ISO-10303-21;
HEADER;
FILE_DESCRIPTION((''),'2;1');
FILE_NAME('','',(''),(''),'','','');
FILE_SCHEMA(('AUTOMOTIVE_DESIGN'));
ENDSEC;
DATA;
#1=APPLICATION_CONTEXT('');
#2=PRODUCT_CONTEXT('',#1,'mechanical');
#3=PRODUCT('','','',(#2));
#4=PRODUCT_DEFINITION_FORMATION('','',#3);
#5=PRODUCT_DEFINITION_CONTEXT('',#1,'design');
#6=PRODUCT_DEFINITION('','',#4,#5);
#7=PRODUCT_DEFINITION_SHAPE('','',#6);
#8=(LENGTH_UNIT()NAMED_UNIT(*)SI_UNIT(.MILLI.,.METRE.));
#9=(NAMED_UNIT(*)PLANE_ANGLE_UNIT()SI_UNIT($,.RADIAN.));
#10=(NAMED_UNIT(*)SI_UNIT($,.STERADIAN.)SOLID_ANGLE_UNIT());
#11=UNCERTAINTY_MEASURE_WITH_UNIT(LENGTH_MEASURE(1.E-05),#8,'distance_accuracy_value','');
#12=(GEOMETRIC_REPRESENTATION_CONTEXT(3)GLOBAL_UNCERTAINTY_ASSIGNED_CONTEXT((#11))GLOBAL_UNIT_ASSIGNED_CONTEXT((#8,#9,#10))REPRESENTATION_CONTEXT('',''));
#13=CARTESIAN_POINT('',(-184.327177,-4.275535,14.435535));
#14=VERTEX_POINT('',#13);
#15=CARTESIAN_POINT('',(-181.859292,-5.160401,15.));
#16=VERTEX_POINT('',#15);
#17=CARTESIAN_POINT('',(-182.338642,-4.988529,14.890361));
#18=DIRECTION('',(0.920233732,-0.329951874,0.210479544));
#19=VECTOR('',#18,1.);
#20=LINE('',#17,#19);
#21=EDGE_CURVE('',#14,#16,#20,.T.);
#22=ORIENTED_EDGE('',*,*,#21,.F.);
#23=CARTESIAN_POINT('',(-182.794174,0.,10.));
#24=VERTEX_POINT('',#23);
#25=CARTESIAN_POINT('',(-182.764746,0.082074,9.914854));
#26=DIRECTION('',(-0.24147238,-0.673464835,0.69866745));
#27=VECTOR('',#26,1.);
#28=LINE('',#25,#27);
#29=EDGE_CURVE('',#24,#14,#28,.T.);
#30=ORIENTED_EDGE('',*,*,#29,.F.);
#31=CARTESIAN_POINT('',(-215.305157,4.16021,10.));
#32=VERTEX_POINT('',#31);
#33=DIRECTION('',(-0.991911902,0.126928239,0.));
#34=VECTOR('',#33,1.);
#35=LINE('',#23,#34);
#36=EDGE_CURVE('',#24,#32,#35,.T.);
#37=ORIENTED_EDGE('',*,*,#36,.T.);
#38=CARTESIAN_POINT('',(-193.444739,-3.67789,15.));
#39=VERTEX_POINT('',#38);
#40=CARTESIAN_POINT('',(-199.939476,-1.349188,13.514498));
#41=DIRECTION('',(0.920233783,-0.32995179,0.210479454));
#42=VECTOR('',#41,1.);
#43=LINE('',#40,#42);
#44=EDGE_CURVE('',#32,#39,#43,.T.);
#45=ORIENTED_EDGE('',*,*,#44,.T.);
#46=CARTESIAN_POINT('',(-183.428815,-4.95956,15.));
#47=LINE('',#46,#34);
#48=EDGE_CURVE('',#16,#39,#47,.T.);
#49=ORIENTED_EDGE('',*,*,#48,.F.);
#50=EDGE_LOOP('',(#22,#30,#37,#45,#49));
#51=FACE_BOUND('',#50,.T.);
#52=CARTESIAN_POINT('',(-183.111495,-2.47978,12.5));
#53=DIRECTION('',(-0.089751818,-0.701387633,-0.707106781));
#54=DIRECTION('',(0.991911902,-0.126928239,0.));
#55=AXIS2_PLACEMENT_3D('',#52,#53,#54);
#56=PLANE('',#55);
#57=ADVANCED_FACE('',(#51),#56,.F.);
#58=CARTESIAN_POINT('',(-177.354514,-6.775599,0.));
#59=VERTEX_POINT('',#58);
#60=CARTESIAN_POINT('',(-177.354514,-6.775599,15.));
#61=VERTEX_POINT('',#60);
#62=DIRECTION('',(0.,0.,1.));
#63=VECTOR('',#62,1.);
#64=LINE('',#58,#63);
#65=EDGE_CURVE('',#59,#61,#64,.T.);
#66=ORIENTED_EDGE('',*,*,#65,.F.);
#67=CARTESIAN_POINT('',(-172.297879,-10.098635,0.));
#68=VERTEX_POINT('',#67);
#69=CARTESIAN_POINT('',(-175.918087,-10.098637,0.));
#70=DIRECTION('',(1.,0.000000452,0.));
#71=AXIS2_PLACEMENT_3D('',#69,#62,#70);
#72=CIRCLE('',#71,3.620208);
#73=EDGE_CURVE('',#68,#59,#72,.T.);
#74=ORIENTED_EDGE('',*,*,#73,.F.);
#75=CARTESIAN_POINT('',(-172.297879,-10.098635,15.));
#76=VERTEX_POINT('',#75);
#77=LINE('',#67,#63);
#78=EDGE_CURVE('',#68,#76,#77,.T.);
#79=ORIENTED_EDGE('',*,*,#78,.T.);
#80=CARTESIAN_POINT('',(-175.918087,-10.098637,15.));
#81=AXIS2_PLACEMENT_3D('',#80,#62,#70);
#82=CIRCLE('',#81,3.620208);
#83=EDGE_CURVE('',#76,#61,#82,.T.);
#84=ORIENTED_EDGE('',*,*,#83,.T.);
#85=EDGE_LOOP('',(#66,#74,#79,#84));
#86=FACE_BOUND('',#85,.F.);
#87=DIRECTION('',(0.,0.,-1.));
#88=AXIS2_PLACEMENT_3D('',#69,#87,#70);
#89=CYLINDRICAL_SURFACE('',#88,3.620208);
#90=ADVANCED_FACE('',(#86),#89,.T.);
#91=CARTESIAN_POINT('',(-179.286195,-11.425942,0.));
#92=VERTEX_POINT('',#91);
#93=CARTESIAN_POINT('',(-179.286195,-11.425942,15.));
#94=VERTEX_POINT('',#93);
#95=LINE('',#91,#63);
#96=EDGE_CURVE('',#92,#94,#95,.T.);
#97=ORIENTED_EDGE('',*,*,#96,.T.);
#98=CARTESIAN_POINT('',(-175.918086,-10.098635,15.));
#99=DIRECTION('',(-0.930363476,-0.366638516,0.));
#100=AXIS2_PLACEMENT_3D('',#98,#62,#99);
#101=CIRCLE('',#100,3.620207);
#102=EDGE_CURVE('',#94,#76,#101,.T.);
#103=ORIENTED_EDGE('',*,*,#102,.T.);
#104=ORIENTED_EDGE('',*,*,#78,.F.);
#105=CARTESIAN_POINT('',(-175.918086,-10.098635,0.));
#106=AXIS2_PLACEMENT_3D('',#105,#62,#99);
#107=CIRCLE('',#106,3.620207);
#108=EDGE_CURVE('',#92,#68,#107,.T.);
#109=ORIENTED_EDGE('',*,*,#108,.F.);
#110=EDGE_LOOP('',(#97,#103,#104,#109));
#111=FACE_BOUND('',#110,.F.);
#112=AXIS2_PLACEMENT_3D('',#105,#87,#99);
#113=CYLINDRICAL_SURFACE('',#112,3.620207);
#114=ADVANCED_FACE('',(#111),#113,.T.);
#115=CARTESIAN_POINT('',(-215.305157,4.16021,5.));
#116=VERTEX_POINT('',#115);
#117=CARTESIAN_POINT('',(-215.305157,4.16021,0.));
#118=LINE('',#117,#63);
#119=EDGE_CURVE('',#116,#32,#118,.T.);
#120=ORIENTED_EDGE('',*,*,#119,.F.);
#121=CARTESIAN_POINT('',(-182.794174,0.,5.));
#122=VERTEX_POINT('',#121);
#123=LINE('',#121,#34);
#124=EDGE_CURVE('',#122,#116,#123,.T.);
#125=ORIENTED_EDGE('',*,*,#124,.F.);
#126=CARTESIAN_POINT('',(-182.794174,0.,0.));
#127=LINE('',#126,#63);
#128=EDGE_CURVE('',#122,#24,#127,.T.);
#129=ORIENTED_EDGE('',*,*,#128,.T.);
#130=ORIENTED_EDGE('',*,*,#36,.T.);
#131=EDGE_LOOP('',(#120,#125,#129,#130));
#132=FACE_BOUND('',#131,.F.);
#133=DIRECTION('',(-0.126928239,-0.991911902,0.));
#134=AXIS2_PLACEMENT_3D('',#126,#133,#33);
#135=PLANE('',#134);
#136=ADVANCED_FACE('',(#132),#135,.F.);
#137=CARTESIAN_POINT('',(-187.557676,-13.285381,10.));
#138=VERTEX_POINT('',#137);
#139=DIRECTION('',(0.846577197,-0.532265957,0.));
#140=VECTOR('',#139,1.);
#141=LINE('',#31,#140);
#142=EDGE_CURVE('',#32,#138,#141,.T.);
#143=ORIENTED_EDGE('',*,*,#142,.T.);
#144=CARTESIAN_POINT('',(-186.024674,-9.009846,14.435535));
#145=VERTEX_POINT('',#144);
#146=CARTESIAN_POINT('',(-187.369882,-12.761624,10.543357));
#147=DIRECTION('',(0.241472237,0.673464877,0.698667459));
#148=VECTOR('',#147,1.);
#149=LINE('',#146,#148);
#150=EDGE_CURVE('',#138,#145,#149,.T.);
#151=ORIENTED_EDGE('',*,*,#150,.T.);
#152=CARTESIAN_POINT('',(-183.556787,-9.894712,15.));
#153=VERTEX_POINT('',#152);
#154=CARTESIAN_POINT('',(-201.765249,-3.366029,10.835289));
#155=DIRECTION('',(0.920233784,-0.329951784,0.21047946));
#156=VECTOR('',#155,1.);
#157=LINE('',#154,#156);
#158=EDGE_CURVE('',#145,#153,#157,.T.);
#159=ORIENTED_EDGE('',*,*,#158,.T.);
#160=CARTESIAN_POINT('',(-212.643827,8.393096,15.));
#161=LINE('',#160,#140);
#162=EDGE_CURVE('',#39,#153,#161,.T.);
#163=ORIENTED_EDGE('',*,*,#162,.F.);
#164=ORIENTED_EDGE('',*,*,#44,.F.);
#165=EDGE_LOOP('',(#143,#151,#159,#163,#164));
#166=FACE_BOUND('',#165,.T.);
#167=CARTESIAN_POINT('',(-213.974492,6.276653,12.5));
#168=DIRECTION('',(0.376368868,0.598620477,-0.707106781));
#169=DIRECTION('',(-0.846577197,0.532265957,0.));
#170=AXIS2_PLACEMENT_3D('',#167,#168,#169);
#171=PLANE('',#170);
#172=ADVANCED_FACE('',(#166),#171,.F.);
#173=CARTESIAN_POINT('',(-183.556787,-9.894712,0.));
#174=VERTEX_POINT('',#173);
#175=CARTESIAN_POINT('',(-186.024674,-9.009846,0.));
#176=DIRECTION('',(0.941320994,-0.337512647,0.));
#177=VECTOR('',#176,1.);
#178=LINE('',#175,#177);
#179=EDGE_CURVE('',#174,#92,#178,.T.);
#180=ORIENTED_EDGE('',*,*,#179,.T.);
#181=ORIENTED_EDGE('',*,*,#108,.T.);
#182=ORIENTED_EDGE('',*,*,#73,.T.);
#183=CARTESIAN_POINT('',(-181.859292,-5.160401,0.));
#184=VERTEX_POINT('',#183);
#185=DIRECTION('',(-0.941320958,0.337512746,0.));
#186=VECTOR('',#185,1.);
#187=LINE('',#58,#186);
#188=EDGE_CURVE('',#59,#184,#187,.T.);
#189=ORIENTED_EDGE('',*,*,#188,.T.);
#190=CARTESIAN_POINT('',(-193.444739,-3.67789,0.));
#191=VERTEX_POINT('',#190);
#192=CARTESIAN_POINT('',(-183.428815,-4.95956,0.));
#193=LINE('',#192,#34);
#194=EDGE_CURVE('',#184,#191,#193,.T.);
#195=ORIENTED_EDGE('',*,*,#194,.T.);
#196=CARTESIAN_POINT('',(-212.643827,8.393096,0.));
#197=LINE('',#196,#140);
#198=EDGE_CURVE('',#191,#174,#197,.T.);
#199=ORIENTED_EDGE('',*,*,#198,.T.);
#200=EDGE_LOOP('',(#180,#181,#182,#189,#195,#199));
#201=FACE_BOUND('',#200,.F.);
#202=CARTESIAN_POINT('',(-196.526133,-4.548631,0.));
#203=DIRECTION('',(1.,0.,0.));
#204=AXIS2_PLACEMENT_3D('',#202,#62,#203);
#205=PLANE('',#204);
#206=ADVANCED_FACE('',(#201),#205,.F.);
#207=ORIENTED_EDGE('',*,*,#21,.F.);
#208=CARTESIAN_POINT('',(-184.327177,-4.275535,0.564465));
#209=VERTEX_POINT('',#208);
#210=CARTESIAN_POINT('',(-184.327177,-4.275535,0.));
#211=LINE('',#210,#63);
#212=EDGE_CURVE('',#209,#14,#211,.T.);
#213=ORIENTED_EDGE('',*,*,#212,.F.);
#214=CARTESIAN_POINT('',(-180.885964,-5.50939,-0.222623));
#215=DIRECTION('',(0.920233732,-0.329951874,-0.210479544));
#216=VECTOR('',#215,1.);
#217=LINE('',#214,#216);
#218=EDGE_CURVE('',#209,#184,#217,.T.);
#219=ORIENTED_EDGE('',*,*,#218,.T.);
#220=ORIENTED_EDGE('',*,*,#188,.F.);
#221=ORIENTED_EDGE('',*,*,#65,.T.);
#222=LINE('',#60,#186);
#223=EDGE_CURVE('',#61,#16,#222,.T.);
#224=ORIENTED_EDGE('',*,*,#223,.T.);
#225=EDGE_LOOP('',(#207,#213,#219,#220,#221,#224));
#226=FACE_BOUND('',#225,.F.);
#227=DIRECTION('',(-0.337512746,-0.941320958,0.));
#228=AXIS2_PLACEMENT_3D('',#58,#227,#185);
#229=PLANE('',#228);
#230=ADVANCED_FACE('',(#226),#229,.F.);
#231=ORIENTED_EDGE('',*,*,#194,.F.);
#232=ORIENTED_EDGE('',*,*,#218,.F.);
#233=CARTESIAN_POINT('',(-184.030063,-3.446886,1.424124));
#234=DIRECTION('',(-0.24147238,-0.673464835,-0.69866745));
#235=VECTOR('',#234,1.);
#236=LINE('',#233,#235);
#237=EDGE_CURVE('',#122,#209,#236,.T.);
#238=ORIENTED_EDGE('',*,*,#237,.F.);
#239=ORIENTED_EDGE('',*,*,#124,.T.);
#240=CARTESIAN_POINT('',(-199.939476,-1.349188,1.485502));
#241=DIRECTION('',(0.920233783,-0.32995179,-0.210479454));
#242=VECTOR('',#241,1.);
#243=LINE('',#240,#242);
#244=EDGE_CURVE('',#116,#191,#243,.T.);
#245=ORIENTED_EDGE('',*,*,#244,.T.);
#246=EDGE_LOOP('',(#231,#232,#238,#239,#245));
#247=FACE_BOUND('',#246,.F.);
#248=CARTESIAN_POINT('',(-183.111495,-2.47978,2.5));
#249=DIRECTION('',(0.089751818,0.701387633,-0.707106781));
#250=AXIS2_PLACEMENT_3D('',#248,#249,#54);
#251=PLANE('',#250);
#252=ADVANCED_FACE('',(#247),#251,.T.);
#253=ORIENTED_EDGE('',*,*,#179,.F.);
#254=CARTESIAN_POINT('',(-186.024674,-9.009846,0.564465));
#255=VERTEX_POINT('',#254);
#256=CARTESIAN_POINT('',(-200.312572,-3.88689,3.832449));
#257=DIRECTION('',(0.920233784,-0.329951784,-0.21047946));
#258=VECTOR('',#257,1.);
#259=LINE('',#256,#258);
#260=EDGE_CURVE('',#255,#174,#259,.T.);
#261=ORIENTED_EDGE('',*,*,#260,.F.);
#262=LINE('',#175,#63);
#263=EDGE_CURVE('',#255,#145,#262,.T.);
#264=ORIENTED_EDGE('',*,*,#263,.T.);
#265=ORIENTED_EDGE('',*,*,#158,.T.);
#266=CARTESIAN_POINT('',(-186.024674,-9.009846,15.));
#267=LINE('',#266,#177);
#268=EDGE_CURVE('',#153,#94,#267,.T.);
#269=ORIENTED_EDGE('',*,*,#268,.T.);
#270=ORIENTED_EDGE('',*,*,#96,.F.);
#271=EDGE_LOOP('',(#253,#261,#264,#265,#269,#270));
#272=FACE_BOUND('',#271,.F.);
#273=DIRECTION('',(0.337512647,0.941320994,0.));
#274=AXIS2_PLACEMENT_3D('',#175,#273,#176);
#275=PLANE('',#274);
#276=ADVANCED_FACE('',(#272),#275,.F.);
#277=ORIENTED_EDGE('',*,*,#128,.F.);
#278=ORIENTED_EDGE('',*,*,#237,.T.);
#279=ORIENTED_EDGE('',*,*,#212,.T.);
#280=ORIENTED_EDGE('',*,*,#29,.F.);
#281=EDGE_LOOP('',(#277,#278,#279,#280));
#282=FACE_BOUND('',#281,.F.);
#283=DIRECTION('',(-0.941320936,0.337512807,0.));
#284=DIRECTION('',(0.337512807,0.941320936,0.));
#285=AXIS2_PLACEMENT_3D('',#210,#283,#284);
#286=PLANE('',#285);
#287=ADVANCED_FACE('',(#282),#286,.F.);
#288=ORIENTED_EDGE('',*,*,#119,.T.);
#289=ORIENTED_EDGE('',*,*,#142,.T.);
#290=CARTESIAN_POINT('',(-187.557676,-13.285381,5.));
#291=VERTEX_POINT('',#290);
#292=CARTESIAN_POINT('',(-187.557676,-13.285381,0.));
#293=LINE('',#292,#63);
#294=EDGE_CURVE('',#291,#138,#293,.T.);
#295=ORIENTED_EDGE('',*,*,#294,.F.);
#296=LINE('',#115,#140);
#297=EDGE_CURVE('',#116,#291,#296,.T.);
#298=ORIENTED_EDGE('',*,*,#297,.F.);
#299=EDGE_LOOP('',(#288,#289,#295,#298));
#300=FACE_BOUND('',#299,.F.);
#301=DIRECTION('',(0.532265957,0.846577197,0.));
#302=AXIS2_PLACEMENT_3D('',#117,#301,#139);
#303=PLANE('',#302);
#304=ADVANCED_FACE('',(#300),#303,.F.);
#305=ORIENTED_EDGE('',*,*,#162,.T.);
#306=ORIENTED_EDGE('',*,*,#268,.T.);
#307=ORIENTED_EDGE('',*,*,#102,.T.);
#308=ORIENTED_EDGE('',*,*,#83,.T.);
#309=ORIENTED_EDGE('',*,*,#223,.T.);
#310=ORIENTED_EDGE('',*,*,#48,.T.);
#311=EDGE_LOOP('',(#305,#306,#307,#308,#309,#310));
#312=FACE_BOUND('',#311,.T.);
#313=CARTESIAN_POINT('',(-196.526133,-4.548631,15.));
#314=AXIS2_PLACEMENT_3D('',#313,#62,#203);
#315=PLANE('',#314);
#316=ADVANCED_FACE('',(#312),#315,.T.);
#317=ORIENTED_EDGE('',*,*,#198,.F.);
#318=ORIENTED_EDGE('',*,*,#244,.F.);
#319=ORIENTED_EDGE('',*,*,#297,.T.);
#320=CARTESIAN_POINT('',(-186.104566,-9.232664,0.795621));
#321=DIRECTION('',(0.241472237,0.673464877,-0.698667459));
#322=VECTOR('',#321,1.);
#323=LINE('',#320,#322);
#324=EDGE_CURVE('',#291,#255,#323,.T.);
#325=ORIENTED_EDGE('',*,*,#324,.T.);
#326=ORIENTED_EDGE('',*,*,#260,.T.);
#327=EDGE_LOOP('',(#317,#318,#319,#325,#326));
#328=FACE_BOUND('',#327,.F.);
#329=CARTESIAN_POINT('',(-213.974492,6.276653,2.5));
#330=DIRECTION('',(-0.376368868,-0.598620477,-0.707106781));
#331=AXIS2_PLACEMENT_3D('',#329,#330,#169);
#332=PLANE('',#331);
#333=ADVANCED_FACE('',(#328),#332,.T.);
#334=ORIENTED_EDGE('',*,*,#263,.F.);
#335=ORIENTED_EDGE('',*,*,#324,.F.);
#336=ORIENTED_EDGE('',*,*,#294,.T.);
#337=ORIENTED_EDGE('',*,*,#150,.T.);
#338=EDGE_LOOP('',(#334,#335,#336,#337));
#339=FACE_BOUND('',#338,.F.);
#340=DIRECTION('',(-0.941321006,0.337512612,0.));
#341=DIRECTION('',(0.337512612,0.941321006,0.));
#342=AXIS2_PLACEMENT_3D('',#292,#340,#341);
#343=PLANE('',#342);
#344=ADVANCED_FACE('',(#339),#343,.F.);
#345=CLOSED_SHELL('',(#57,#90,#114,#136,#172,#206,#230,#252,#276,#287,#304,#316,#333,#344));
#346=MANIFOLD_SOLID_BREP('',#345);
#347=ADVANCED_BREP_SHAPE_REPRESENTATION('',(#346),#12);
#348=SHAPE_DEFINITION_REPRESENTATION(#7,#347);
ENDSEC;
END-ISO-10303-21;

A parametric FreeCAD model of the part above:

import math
import FreeCAD as App
import Part
import Sketcher
from FreeCAD import Vector


def edges_at(feature, points):
    """Names of the edges that pass closest to the given points."""
    edges = feature.Shape.Edges
    near = lambda p: min(range(len(edges)), key=lambda i: edges[i].distToShape(Part.Vertex(*p))[0])
    return sorted({f"Edge{near(p) + 1}" for p in points})

doc = App.newDocument("Part")
body = doc.addObject("PartDesign::Body", "Body")

sketch1 = body.newObject("Sketcher::SketchObject", "Sketch")
sketch1.AttachmentSupport = (doc.getObject("XY_Plane"), [""])
sketch1.MapMode = "FlatFace"
sketch1.addGeometry(Part.LineSegment(Vector(-186, -9, 0), Vector(-179.3, -11.4, 0)), False)
sketch1.addGeometry(Part.ArcOfCircle(Part.Circle(Vector(-175.9, -10.1, 0), Vector(0, 0, 1), 3.6), math.radians(-158), math.radians(0)), False)
sketch1.addGeometry(Part.ArcOfCircle(Part.Circle(Vector(-175.9, -10.1, 0), Vector(0, 0, 1), 3.6), math.radians(0), math.radians(113)), False)
sketch1.addGeometry(Part.LineSegment(Vector(-177.4, -6.8, 0), Vector(-184.3, -4.3, 0)), False)
sketch1.addGeometry(Part.LineSegment(Vector(-184.3, -4.3, 0), Vector(-182.8, 0, 0)), False)
sketch1.addGeometry(Part.LineSegment(Vector(-182.8, 0, 0), Vector(-215.3, 4.2, 0)), False)
sketch1.addGeometry(Part.LineSegment(Vector(-215.3, 4.2, 0), Vector(-187.6, -13.3, 0)), False)
sketch1.addGeometry(Part.LineSegment(Vector(-187.6, -13.3, 0), Vector(-186, -9, 0)), False)
sketch1.addConstraint(Sketcher.Constraint("Coincident", 0, 2, 1, 1))
sketch1.addConstraint(Sketcher.Constraint("Tangent", 1, 2, 2, 1))
sketch1.addConstraint(Sketcher.Constraint("Coincident", 2, 2, 3, 1))
sketch1.addConstraint(Sketcher.Constraint("Coincident", 3, 2, 4, 1))
sketch1.addConstraint(Sketcher.Constraint("Coincident", 4, 2, 5, 1))
sketch1.addConstraint(Sketcher.Constraint("Coincident", 5, 2, 6, 1))
sketch1.addConstraint(Sketcher.Constraint("Coincident", 6, 2, 7, 1))
sketch1.addConstraint(Sketcher.Constraint("Coincident", 7, 2, 0, 1))
sketch1.addConstraint(Sketcher.Constraint("Equal", 1, 2))
sketch1.addConstraint(Sketcher.Constraint("PointOnObject", 4, 2, -1))
sketch1.addConstraint(Sketcher.Constraint("Parallel", 0, 3))
sketch1.addConstraint(Sketcher.Constraint("Perpendicular", 3, 4))
sketch1.addConstraint(Sketcher.Constraint("Parallel", 4, 7))
sketch1.addConstraint(Sketcher.Constraint("Horizontal", 2, 3, 1, 2))
sketch1.addConstraint(Sketcher.Constraint("Equal", 5, 6))
sketch1.addConstraint(Sketcher.Constraint("Equal", 4, 7))
sketch1.addConstraint(Sketcher.Constraint("Radius", 1, 3.620207))
sketch1.addConstraint(Sketcher.Constraint("DistanceX", 6, 2, 7, 2, 1.533002))
sketch1.addConstraint(Sketcher.Constraint("DistanceY", 2, 2, -1, 1, 6.775599))
sketch1.addConstraint(Sketcher.Constraint("DistanceY", 1, 3, 3, 2, 5.8231))
sketch1.addConstraint(Sketcher.Constraint("DistanceX", 6, 2, 3, 2, 3.230499))
sketch1.addConstraint(Sketcher.Constraint("Distance", 4, 4.542059))
sketch1.addConstraint(Sketcher.Constraint("Distance", 5, 32.776079))
sketch1.addConstraint(Sketcher.Constraint("DistanceY", 0, 2, -1, 1, 11.425942))
sketch1.addConstraint(Sketcher.Constraint("DistanceX", 1, 2, -1, 1, 172.297879))
pad1 = body.newObject("PartDesign::Pad", "Pad")
pad1.Profile = sketch1
pad1.Length = 15
doc.recompute()

chamfer = body.newObject("PartDesign::Chamfer", "Chamfer")
chamfer.Base = (pad1, edges_at(pad1, [
    (-201.431, -4.563, 15),
    (-199.05, 2.08, 15),
    (-199.05, 2.08, 0),
    (-201.431, -4.563, 0),
]))
chamfer.Size = 5

doc.recompute()
